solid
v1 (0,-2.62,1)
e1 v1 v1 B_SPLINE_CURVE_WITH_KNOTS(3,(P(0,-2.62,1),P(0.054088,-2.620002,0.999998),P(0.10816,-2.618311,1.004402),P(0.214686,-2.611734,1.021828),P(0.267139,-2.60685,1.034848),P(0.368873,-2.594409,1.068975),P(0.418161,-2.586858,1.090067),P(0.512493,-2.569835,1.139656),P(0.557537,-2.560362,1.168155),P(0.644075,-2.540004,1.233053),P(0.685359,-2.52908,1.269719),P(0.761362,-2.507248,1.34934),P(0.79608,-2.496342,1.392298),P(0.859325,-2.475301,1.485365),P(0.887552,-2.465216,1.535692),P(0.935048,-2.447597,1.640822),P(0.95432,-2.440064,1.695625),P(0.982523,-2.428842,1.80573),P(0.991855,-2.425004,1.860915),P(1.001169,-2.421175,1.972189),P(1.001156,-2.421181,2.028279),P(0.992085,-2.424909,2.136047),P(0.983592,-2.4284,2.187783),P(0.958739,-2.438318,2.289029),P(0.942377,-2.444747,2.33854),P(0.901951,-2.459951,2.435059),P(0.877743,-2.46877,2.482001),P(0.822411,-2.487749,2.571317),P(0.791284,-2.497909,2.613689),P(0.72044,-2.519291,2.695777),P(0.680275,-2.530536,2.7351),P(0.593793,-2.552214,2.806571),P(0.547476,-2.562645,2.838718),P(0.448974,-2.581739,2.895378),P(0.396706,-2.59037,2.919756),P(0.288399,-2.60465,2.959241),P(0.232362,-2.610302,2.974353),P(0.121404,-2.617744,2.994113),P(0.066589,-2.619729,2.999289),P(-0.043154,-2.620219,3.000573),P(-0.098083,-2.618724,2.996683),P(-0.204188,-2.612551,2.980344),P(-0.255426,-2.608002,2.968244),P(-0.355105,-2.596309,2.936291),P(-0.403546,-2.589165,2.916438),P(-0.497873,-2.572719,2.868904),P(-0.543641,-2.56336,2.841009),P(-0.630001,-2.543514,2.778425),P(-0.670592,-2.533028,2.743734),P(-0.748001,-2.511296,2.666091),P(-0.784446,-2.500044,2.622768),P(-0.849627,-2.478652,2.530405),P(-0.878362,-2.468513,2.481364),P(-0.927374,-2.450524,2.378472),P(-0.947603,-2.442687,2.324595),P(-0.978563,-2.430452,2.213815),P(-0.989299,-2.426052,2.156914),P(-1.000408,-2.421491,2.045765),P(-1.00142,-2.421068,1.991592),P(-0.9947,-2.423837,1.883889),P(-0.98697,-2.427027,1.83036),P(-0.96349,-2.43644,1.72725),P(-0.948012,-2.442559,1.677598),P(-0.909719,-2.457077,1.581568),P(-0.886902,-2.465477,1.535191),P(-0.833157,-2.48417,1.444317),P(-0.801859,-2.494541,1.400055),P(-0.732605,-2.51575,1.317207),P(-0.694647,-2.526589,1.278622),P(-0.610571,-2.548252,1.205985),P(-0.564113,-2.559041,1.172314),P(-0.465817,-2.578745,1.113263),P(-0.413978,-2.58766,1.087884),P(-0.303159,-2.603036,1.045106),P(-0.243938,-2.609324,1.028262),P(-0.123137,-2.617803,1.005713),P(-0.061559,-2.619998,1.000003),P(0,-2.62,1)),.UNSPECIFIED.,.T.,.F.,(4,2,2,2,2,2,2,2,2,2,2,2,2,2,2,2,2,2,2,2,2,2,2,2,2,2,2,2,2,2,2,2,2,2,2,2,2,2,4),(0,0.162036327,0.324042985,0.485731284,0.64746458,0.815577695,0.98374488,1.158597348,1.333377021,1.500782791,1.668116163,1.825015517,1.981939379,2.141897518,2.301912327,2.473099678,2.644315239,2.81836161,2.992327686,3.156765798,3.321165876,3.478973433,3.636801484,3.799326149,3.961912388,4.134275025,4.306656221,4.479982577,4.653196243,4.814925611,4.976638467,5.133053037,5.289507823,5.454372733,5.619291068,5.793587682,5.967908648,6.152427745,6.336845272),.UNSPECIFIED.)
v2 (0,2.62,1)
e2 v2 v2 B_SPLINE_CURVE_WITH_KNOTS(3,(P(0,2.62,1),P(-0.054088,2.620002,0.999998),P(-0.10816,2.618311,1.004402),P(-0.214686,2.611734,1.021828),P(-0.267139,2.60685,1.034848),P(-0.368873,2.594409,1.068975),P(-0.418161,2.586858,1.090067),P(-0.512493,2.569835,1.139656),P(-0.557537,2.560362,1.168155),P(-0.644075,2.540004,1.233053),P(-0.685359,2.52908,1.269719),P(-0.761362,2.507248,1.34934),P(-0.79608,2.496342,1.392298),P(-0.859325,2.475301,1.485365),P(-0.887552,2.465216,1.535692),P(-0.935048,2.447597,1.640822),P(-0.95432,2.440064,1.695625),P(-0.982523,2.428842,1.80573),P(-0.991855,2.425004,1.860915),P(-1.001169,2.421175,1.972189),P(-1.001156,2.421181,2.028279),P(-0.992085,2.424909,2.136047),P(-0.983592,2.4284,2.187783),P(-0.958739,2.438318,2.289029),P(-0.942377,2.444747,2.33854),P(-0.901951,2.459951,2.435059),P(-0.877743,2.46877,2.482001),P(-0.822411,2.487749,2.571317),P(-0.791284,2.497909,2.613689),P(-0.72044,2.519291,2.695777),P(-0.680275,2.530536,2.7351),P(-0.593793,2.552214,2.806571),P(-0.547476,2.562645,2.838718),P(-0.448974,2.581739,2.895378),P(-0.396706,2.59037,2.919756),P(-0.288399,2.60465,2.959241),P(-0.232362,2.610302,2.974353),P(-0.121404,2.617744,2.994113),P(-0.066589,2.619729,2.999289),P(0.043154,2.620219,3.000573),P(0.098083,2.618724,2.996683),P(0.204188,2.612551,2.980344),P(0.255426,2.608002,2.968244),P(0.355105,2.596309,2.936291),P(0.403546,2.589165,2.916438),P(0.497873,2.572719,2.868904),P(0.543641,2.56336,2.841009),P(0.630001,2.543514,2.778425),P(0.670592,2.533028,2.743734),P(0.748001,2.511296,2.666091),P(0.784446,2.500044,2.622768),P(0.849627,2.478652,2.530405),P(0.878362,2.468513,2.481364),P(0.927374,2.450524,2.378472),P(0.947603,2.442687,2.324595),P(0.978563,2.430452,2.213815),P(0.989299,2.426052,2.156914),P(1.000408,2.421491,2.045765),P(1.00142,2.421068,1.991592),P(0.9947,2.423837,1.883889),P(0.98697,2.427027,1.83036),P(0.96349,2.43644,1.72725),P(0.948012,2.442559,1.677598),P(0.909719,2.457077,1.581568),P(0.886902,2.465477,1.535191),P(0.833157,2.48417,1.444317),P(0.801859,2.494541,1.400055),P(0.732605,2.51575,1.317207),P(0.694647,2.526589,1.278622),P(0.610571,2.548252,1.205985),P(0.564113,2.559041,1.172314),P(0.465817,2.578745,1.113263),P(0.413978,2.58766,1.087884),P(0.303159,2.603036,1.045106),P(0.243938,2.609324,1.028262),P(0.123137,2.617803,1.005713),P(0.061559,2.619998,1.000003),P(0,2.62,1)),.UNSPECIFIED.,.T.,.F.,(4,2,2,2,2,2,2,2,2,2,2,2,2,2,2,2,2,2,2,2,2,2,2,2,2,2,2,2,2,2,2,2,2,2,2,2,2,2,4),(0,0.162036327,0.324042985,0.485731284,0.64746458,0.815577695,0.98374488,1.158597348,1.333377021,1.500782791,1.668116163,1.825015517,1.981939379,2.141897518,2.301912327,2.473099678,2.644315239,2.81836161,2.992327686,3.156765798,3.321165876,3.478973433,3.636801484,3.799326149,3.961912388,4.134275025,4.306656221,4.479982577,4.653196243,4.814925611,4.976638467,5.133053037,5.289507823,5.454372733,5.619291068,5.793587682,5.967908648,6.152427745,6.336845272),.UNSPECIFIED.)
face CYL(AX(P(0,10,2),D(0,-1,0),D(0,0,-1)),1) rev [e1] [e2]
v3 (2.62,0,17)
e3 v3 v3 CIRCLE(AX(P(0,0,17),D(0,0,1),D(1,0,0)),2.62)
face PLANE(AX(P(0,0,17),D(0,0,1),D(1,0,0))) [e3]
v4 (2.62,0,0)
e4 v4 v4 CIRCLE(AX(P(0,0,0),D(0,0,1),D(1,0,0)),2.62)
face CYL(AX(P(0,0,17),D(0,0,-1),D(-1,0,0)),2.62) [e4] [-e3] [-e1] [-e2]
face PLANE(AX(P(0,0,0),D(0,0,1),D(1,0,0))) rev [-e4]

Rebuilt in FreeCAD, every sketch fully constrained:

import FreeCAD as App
import Part
import Sketcher
from FreeCAD import Vector

doc = App.newDocument("Part")
params = doc.addObject("Spreadsheet::Sheet", "Params")
for row, (alias, value) in enumerate([
    ("sketch1_diameter", "5.24 mm"),
    ("pad1_length", "17 mm"),
    ("sketch2_diameter", "2 mm"),
], start=1):
    params.set(f"A{row}", alias)
    params.set(f"B{row}", "=" + value)
    params.setAlias(f"B{row}", alias)

body = doc.addObject("PartDesign::Body", "Body")

# Sketch on XY plane
sketch1 = doc.addObject("Sketcher::SketchObject", "Sketch")
body.addObject(sketch1)
sketch1.AttachmentSupport = (doc.XY_Plane, [""])
sketch1.MapMode = "FlatFace"
sketch1.addGeometry(Part.Circle(Vector(0, 0, 0), Vector(0, 0, 1), 2.62), False)
sketch1.addConstraint(Sketcher.Constraint("Coincident", 0, 3, -1, 1))
sketch1.addConstraint(Sketcher.Constraint("Diameter", 0, 5.24))
sketch1.setExpression("Constraints[1]", "Params.sketch1_diameter")
pad1 = doc.addObject("PartDesign::Pad", "Pad")
body.addObject(pad1)
pad1.Profile = sketch1
pad1.setExpression("Length", "Params.pad1_length")

# Sketch on XZ plane
sketch2 = doc.addObject("Sketcher::SketchObject", "Sketch001")
body.addObject(sketch2)
sketch2.AttachmentSupport = (doc.XZ_Plane, [""])
sketch2.MapMode = "FlatFace"
sketch2.addGeometry(Part.Circle(Vector(0, 2, 0), Vector(0, 0, 1), 1), False)
sketch2.addConstraint(Sketcher.Constraint("PointOnObject", 0, 3, -2))
sketch2.addConstraint(Sketcher.Constraint("Diameter", 0, 2.0))
sketch2.addConstraint(Sketcher.Constraint("DistanceY", -1, 1, 0, 3, 2.0))
sketch2.setExpression("Constraints[1]", "Params.sketch2_diameter")
pocket1 = doc.addObject("PartDesign::Pocket", "Pocket")
body.addObject(pocket1)
pocket1.Profile = sketch2
pocket1.Type = "ThroughAll"
pocket1.Midplane = True

doc.recompute()
